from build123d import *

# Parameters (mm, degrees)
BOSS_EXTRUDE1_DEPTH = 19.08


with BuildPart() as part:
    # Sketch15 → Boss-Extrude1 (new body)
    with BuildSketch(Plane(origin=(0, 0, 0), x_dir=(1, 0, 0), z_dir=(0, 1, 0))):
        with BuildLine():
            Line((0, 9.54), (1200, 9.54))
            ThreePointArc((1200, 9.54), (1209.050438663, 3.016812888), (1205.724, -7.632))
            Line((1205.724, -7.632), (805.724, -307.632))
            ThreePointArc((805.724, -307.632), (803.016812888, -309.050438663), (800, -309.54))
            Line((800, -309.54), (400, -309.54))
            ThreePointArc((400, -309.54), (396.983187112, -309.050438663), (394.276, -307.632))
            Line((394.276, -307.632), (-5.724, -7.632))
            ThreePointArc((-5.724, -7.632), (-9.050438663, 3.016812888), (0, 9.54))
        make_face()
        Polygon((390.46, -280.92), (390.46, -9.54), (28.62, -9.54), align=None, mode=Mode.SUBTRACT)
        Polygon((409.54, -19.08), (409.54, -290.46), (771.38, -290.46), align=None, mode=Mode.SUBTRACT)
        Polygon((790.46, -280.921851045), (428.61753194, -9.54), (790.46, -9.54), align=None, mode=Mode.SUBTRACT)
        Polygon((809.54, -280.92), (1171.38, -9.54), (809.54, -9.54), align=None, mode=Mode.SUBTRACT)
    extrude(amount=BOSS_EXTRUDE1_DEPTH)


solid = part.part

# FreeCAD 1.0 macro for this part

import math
import FreeCAD as App
import Part
import Sketcher
from FreeCAD import Vector
Q = App.Units.Quantity


def add_polygon(sketch, points):
    """Adds a closed chain of lines whose ends are joined by coincident constraints."""
    first, n = sketch.GeometryCount, len(points)
    for a, b in zip(points, points[1:] + points[:1]):
        sketch.addGeometry(Part.LineSegment(App.Vector(*a, 0), App.Vector(*b, 0)), False)
    for i in range(n):
        sketch.addConstraint(Sketcher.Constraint("Coincident", first + i, 2, first + (i + 1) % n, 1))

doc = App.newDocument("Part")
body = doc.addObject("PartDesign::Body", "Body")

sketch1 = body.newObject("Sketcher::SketchObject", "Sketch")
sketch1.AttachmentSupport = (doc.getObject("XZ_Plane"), [""])
sketch1.MapMode = "FlatFace"
sketch1.addGeometry(Part.LineSegment(Vector(1200, -10, 0), Vector(0, -10, 0)), False)
sketch1.addGeometry(Part.ArcOfCircle(Part.Circle(Vector(0, 0, 0), Vector(0, 0, 1), 10), math.radians(127), math.radians(270)), False)
sketch1.addGeometry(Part.LineSegment(Vector(-6, 8, 0), Vector(394, 308, 0)), False)
sketch1.addGeometry(Part.ArcOfCircle(Part.Circle(Vector(400, 300, 0), Vector(0, 0, 1), 10), math.radians(90), math.radians(127)), False)
sketch1.addGeometry(Part.LineSegment(Vector(400, 310, 0), Vector(800, 310, 0)), False)
sketch1.addGeometry(Part.ArcOfCircle(Part.Circle(Vector(800, 300, 0), Vector(0, 0, 1), 10), math.radians(53), math.radians(90)), False)
sketch1.addGeometry(Part.LineSegment(Vector(806, 308, 0), Vector(1206, 8, 0)), False)
sketch1.addGeometry(Part.ArcOfCircle(Part.Circle(Vector(1200, 0, 0), Vector(0, 0, 1), 10), math.radians(-90), math.radians(53)), False)
add_polygon(sketch1, [(410, 19), (771, 290), (410, 290)])
add_polygon(sketch1, [(810, 281), (810, 10), (1171, 10)])
add_polygon(sketch1, [(790, 281), (429, 10), (790, 10)])
add_polygon(sketch1, [(390, 281), (29, 10), (390, 10)])
sketch1.addConstraint(Sketcher.Constraint("Tangent", 0, 2, 1, 2))
sketch1.addConstraint(Sketcher.Constraint("Tangent", 1, 1, 2, 1))
sketch1.addConstraint(Sketcher.Constraint("Tangent", 2, 2, 3, 2))
sketch1.addConstraint(Sketcher.Constraint("Tangent", 3, 1, 4, 1))
sketch1.addConstraint(Sketcher.Constraint("Tangent", 4, 2, 5, 2))
sketch1.addConstraint(Sketcher.Constraint("Tangent", 5, 1, 6, 1))
sketch1.addConstraint(Sketcher.Constraint("Tangent", 6, 2, 7, 2))
sketch1.addConstraint(Sketcher.Constraint("Tangent", 7, 1, 0, 1))
sketch1.addConstraint(Sketcher.Constraint("Horizontal", 0))
sketch1.addConstraint(Sketcher.Constraint("Horizontal", 4))
sketch1.addConstraint(Sketcher.Constraint("Horizontal", 9))
sketch1.addConstraint(Sketcher.Constraint("Vertical", 10))
sketch1.addConstraint(Sketcher.Constraint("Vertical", 11))
sketch1.addConstraint(Sketcher.Constraint("Horizontal", 12))
sketch1.addConstraint(Sketcher.Constraint("Horizontal", 15))
sketch1.addConstraint(Sketcher.Constraint("Vertical", 16))
sketch1.addConstraint(Sketcher.Constraint("Horizontal", 18))
sketch1.addConstraint(Sketcher.Constraint("Vertical", 19))
sketch1.addConstraint(Sketcher.Constraint("Coincident", 1, 3, -1, 1))
sketch1.addConstraint(Sketcher.Constraint("Equal", 1, 3))
sketch1.addConstraint(Sketcher.Constraint("Equal", 3, 5))
sketch1.addConstraint(Sketcher.Constraint("Equal", 5, 7))
sketch1.addConstraint(Sketcher.Constraint("Parallel", 2, 8))
sketch1.addConstraint(Sketcher.Constraint("Parallel", 6, 13))
sketch1.addConstraint(Sketcher.Constraint("Parallel", 8, 14))
sketch1.addConstraint(Sketcher.Constraint("Parallel", 14, 17))
sketch1.addConstraint(Sketcher.Constraint("Horizontal", 12, 2, 14, 2))
sketch1.addConstraint(Sketcher.Constraint("Horizontal", 15, 2, 17, 2))
sketch1.addConstraint(Sketcher.Constraint("Horizontal", 13, 2, 19, 2))
sketch1.addConstraint(Sketcher.Constraint("Equal", 9, 12))
sketch1.addConstraint(Sketcher.Constraint("Equal", 12, 18))
sketch1.addConstraint(Sketcher.Constraint("DistanceX", 0, 2, 0, 1, Q("1200 mm")))
sketch1.addConstraint(Sketcher.Constraint("DistanceX", 4, 1, 4, 2, Q("400 mm")))
sketch1.addConstraint(Sketcher.Constraint("Radius", 1, Q("9.54 mm")))
sketch1.addConstraint(Sketcher.Constraint("Distance", 2, Q("500 mm")))
sketch1.addConstraint(Sketcher.Constraint("DistanceY", 11, 2, 4, 2, Q("300 mm")))
sketch1.addConstraint(Sketcher.Constraint("Distance", 8, Q("452.3 mm")))
sketch1.addConstraint(Sketcher.Constraint("DistanceX", -1, 1, 8, 2, Q("771.38 mm")))
sketch1.addConstraint(Sketcher.Constraint("DistanceY", -1, 1, 8, 2, Q("290.46 mm")))
sketch1.addConstraint(Sketcher.Constraint("DistanceX", -1, 1, 11, 2, Q("809.54 mm")))
sketch1.addConstraint(Sketcher.Constraint("DistanceX", -1, 1, 15, 2, Q("790.46 mm")))
sketch1.addConstraint(Sketcher.Constraint("DistanceX", -1, 1, 17, 2, Q("28.62 mm")))
sketch1.addConstraint(Sketcher.Constraint("DistanceX", 15, 1, 15, 2, Q("361.842468 mm")))
pad1 = body.newObject("PartDesign::Pad", "Pad")
pad1.Profile = sketch1
pad1.Length = 19.08
pad1.Reversed = True

doc.recompute()
